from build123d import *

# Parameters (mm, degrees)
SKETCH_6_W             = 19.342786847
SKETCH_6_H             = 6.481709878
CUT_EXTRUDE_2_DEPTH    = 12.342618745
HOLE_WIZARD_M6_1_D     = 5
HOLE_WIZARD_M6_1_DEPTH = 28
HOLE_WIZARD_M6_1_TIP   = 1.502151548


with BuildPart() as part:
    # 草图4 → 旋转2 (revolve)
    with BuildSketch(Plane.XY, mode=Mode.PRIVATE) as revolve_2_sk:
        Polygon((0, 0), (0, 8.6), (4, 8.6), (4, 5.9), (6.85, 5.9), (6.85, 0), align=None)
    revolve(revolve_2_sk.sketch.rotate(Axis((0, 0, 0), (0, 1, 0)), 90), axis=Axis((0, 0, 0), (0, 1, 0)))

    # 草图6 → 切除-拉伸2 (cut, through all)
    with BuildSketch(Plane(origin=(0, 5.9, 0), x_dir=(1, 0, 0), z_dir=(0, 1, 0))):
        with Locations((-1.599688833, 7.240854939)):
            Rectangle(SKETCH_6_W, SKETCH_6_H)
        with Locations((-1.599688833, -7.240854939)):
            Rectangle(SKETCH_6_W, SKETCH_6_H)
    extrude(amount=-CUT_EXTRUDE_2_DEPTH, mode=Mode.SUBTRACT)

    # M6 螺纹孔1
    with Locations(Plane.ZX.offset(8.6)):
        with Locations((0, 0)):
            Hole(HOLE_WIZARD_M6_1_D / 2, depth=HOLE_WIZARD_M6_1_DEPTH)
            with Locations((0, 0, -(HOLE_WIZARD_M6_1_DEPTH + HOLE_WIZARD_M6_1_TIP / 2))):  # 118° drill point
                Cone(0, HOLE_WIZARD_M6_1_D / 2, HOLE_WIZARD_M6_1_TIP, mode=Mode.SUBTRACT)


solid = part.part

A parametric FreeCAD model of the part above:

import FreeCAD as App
import Part
import Sketcher


def add_polygon(sketch, points):
    """Adds a closed chain of lines whose ends are joined by coincident constraints."""
    first, n = sketch.GeometryCount, len(points)
    for a, b in zip(points, points[1:] + points[:1]):
        sketch.addGeometry(Part.LineSegment(App.Vector(*a, 0), App.Vector(*b, 0)), False)
    for i in range(n):
        sketch.addConstraint(Sketcher.Constraint("Coincident", first + i, 2, first + (i + 1) % n, 1))

doc = App.newDocument("Part")
body = doc.addObject("PartDesign::Body", "Body")

# Sketch on XY plane
sketch1 = doc.addObject("Sketcher::SketchObject", "Sketch")
body.addObject(sketch1)
sketch1.AttachmentSupport = (doc.XY_Plane, [""])
sketch1.MapMode = "FlatFace"
add_polygon(sketch1, [(0, 8.6), (0, 0), (6.8, 0), (6.8, 5.9), (4, 5.9), (4, 8.6)])  # lines 0-5
sketch1.addConstraint([
    Sketcher.Constraint("Vertical", 0),
    Sketcher.Constraint("Horizontal", 1),
    Sketcher.Constraint("Vertical", 2),
    Sketcher.Constraint("Horizontal", 3),
    Sketcher.Constraint("Vertical", 4),
    Sketcher.Constraint("Horizontal", 5),
    Sketcher.Constraint("Coincident", 0, 2, -1, 1),
    Sketcher.Constraint("DistanceX", 5, 2, 5, 1, 4.0),
    Sketcher.Constraint("DistanceY", 0, 2, 0, 1, 8.6),
    Sketcher.Constraint("DistanceY", 2, 1, 2, 2, 5.9),
    Sketcher.Constraint("DistanceX", 1, 1, 1, 2, 6.85),
])
revolution = doc.addObject("PartDesign::Revolution", "Revolution")
body.addObject(revolution)
revolution.Profile = sketch1
revolution.ReferenceAxis = (sketch1, ["V_Axis"])
revolution.Angle = 360

# Sketch on XZ plane
sketch2 = doc.addObject("Sketcher::SketchObject", "Sketch001")
body.addObject(sketch2)
sketch2.AttachmentSupport = (doc.XZ_Plane, [""])
sketch2.MapMode = "FlatFace"
sketch2.AttachmentOffset = App.Placement(App.Vector(0, 0, -5.9), App.Rotation())
add_polygon(sketch2, [(-11, -10), (-11, -4), (8, -4), (8, -10)])  # lines 0-3
add_polygon(sketch2, [(-11, 4), (-11, 10), (8, 10), (8, 4)])  # lines 4-7
sketch2.addConstraint([
    Sketcher.Constraint("Vertical", 0),
    Sketcher.Constraint("Horizontal", 1),
    Sketcher.Constraint("Vertical", 2),
    Sketcher.Constraint("Horizontal", 3),
    Sketcher.Constraint("Vertical", 4),
    Sketcher.Constraint("Horizontal", 5),
    Sketcher.Constraint("Vertical", 6),
    Sketcher.Constraint("Horizontal", 7),
    Sketcher.Constraint("Symmetric", 3, 2, 4, 2, -1),
    Sketcher.Constraint("Symmetric", 1, 2, 6, 2, -1),
    Sketcher.Constraint("DistanceY", 0, 2, -1, 1, 4.0),
    Sketcher.Constraint("DistanceY", 0, 1, 0, 2, 6.48171),
    Sketcher.Constraint("DistanceX", 1, 1, 1, 2, 19.342787),
    Sketcher.Constraint("DistanceX", 0, 2, -1, 1, 11.271082),
])
pocket1 = doc.addObject("PartDesign::Pocket", "Pocket")
body.addObject(pocket1)
pocket1.Profile = sketch2
pocket1.Type = "ThroughAll"
pocket1.Reversed = True

# Sketch on XZ plane
sketch3 = doc.addObject("Sketcher::SketchObject", "Sketch002")
body.addObject(sketch3)
sketch3.AttachmentSupport = (doc.XZ_Plane, [""])
sketch3.MapMode = "FlatFace"
sketch3.AttachmentOffset = App.Placement(App.Vector(0, 0, -8.6), App.Rotation())
sketch3.addGeometry(Part.Circle(App.Vector(0, 0, 0), App.Vector(0, 0, 1), 2.5), False)
sketch3.addConstraint([
    Sketcher.Constraint("Coincident", 0, 3, -1, 1),
    Sketcher.Constraint("Diameter", 0, 5.0),
])
doc.recompute()
hole = doc.addObject("PartDesign::Hole", "Hole")
body.addObject(hole)
hole.Profile = sketch3
hole.ThreadType = "None"
hole.Diameter = 5
hole.DepthType = "Dimension"
hole.Depth = 28
hole.DrillPoint = "Angled"
hole.DrillPointAngle = 118
hole.Reversed = True

doc.recompute()
